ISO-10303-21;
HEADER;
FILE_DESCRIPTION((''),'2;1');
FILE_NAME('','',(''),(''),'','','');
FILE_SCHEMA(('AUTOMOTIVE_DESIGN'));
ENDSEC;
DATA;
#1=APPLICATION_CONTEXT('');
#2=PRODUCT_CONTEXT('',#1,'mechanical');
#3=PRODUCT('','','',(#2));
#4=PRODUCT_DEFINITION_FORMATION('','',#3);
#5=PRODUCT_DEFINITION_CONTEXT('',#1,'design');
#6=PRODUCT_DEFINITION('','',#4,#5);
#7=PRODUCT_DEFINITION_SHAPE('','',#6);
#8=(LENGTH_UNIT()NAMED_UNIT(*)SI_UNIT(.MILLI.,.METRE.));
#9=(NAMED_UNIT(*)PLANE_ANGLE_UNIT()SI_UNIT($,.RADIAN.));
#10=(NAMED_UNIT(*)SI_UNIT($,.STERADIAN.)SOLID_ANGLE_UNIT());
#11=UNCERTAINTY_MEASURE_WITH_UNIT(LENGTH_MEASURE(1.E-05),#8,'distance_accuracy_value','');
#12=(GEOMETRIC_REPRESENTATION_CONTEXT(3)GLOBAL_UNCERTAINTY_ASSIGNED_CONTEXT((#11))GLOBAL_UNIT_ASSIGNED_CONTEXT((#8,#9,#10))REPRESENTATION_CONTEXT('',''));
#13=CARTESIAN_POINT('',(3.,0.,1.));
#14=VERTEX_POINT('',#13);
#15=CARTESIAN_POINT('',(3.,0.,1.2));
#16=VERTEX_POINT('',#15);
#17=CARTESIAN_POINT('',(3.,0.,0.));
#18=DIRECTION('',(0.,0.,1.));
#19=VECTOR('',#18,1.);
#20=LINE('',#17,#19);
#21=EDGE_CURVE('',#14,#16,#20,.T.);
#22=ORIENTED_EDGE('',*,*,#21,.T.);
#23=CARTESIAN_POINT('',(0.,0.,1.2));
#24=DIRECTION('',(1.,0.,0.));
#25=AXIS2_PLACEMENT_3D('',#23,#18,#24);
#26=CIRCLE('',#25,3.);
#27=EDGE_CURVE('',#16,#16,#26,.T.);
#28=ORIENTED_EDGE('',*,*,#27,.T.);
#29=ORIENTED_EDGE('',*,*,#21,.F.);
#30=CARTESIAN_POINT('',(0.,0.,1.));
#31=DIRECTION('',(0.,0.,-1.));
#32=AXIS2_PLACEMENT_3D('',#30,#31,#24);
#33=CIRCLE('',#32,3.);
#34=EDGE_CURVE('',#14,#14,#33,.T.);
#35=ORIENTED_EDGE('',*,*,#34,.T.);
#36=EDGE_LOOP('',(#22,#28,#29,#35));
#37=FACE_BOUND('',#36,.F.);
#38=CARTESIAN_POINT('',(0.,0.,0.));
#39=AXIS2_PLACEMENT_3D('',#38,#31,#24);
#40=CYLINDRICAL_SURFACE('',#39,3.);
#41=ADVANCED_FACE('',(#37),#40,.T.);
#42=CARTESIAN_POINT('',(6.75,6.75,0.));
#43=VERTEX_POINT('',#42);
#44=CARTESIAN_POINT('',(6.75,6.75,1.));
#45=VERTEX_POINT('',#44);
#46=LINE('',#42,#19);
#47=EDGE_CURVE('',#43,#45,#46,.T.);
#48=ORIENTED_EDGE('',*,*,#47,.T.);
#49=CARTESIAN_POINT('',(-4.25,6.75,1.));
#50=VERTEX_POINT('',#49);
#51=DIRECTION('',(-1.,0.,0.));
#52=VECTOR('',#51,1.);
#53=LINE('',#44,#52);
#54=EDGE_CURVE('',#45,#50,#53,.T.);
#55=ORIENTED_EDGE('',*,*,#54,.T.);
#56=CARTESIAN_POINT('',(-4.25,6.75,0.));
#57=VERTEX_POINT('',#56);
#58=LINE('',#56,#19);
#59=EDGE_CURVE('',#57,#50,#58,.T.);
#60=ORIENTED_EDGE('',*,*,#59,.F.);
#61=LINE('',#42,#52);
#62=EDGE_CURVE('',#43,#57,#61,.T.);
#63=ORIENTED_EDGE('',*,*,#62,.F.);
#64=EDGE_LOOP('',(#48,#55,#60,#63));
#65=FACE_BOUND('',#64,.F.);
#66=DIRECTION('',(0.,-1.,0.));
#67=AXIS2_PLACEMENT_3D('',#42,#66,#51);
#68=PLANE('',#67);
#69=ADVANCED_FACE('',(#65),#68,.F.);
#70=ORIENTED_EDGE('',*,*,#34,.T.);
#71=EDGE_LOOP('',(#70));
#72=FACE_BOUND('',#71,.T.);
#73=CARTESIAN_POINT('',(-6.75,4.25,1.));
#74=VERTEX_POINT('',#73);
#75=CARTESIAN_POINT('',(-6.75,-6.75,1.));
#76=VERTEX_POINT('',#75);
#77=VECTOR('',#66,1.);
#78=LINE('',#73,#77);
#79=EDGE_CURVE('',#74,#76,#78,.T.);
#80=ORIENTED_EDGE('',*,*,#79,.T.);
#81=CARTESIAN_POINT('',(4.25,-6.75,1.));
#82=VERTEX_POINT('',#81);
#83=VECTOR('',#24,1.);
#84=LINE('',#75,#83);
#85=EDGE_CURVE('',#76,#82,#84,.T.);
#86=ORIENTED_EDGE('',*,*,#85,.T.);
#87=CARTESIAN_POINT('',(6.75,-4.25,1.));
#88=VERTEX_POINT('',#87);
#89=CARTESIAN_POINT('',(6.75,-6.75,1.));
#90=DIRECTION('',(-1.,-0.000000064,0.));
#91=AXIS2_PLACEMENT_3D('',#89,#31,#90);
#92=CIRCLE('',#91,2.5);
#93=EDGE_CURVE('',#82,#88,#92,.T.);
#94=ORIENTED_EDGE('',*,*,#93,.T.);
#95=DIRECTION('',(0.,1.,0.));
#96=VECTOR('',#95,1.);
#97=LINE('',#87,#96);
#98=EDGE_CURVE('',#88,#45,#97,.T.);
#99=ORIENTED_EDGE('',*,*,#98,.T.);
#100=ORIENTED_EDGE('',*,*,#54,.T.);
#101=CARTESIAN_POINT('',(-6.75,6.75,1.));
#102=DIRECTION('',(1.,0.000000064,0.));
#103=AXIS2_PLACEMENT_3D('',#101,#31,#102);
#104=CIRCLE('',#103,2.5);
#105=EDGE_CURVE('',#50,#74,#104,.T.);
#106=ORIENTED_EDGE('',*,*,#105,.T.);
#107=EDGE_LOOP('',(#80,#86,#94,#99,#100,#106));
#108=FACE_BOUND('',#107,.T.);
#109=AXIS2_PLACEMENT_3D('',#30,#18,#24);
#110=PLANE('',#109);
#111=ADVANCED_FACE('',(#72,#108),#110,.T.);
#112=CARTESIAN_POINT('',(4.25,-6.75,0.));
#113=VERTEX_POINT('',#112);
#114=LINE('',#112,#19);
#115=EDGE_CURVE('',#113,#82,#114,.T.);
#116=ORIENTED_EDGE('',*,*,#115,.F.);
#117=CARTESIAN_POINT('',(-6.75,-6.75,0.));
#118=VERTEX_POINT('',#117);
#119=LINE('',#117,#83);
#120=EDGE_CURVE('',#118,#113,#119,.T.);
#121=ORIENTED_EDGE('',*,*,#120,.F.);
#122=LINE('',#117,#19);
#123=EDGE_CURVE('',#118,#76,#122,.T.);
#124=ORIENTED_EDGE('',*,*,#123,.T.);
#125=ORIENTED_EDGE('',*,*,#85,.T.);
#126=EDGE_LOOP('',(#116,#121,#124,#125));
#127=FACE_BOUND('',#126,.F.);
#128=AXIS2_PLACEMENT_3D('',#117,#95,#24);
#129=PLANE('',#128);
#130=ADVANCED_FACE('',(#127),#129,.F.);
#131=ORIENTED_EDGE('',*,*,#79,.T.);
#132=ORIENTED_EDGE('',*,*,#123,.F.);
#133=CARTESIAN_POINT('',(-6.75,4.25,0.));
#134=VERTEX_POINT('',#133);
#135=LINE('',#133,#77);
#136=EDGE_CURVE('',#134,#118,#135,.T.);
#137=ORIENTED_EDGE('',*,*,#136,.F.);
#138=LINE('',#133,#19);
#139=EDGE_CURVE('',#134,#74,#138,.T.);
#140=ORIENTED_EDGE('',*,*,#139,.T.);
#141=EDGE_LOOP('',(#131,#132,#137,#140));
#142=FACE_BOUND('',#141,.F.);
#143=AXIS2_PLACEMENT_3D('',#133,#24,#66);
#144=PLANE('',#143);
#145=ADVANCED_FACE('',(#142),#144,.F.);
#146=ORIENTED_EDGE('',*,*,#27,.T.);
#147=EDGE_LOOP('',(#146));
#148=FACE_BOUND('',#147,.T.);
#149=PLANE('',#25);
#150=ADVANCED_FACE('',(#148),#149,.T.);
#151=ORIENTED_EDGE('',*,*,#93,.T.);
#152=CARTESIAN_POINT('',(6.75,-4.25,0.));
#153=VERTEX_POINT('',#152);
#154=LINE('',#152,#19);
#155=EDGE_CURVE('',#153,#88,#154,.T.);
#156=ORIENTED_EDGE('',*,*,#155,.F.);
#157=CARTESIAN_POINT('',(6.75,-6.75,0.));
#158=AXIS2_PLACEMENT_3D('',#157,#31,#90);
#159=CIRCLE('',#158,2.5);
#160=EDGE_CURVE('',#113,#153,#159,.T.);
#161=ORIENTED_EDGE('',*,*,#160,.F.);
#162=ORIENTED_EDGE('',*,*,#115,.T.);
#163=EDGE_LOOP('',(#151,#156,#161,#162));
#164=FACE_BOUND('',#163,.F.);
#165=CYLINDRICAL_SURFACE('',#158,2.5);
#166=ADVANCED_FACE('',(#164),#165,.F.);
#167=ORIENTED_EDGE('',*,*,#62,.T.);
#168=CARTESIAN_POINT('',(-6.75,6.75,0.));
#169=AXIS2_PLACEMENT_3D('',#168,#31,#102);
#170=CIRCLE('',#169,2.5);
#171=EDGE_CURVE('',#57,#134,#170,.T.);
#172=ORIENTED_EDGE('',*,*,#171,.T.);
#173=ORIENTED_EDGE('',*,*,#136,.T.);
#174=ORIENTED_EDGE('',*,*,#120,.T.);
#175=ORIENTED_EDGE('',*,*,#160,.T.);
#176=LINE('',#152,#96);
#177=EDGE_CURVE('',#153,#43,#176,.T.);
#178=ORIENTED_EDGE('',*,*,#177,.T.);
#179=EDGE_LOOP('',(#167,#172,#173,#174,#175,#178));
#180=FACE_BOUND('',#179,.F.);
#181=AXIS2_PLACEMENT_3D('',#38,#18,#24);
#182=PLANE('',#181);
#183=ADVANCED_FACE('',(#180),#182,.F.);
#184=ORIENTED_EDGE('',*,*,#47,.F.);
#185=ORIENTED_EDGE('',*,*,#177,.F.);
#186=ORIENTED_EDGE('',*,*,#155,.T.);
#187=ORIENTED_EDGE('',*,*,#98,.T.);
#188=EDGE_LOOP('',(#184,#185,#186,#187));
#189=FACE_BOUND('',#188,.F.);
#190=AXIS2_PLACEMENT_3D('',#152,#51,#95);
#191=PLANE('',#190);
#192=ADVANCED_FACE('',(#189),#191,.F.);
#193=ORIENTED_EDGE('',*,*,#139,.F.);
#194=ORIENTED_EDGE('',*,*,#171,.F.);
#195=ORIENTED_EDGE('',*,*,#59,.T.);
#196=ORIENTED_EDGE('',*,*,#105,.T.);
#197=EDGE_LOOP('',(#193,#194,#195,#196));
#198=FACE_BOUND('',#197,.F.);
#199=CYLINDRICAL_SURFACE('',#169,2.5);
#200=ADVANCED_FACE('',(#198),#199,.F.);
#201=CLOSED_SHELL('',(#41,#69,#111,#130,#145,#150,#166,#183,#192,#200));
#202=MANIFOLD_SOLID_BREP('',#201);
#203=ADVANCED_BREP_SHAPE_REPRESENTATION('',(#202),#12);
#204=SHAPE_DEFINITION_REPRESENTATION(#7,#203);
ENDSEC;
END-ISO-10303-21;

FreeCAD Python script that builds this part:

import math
import FreeCAD as App
import Part
import Sketcher

doc = App.newDocument("Part")
body = doc.addObject("PartDesign::Body", "Body")

# Sketch on XY plane
sketch1 = doc.addObject("Sketcher::SketchObject", "Sketch")
body.addObject(sketch1)
sketch1.AttachmentSupport = (doc.XY_Plane, [""])
sketch1.MapMode = "FlatFace"
sketch1.addGeometry(Part.LineSegment(App.Vector(-6.75, -6.75, 0), App.Vector(4.25, -6.75, 0)), False)
sketch1.addGeometry(Part.ArcOfCircle(Part.Circle(App.Vector(6.75, -6.75, 0), App.Vector(0, 0, 1), 2.5), math.radians(89.999996), math.radians(180.000004)), False)
sketch1.addGeometry(Part.LineSegment(App.Vector(6.75, -4.25, 0), App.Vector(6.75, 6.75, 0)), False)
sketch1.addGeometry(Part.LineSegment(App.Vector(6.75, 6.75, 0), App.Vector(-4.25, 6.75, 0)), False)
sketch1.addGeometry(Part.ArcOfCircle(Part.Circle(App.Vector(-6.75, 6.75, 0), App.Vector(0, 0, 1), 2.5), math.radians(-90.000004), math.radians(0.000004)), False)
sketch1.addGeometry(Part.LineSegment(App.Vector(-6.75, 4.25, 0), App.Vector(-6.75, -6.75, 0)), False)
sketch1.addConstraint(Sketcher.Constraint("Coincident", 0, 2, 1, 2))
sketch1.addConstraint(Sketcher.Constraint("Coincident", 1, 1, 2, 1))
sketch1.addConstraint(Sketcher.Constraint("Coincident", 2, 2, 3, 1))
sketch1.addConstraint(Sketcher.Constraint("Coincident", 3, 2, 4, 2))
sketch1.addConstraint(Sketcher.Constraint("Coincident", 4, 1, 5, 1))
sketch1.addConstraint(Sketcher.Constraint("Coincident", 5, 2, 0, 1))
sketch1.addConstraint(Sketcher.Constraint("Horizontal", 0))
sketch1.addConstraint(Sketcher.Constraint("Vertical", 2))
sketch1.addConstraint(Sketcher.Constraint("Horizontal", 3))
sketch1.addConstraint(Sketcher.Constraint("Vertical", 5))
sketch1.addConstraint(Sketcher.Constraint("Equal", 1, 4))
sketch1.addConstraint(Sketcher.Constraint("Symmetric", 1, 3, 4, 3, -1, 1))
sketch1.addConstraint(Sketcher.Constraint("Symmetric", 2, 2, 5, 2, -1, 1))
sketch1.addConstraint(Sketcher.Constraint("Horizontal", 1, 3, 0, 2))
sketch1.addConstraint(Sketcher.Constraint("Equal", 3, 2))
sketch1.addConstraint(Sketcher.Constraint("Radius", 1, 2.5))
sketch1.addConstraint(Sketcher.Constraint("DistanceX", 0, 1, 0, 2, 11.0))
sketch1.addConstraint(Sketcher.Constraint("DistanceX", 4, 3, 0, 2, 11.0))
pad1 = doc.addObject("PartDesign::Pad", "Pad")
body.addObject(pad1)
pad1.Profile = sketch1
pad1.Length = 1

# Sketch on XY plane
sketch2 = doc.addObject("Sketcher::SketchObject", "Sketch001")
body.addObject(sketch2)
sketch2.AttachmentSupport = (doc.XY_Plane, [""])
sketch2.MapMode = "FlatFace"
sketch2.addGeometry(Part.Circle(App.Vector(0, 0, 0), App.Vector(0, 0, 1), 3), False)
sketch2.addConstraint(Sketcher.Constraint("Coincident", 0, 3, -1, 1))
sketch2.addConstraint(Sketcher.Constraint("Diameter", 0, 6.0))
pad2 = doc.addObject("PartDesign::Pad", "Pad001")
body.addObject(pad2)
pad2.Profile = sketch2
pad2.Length = 1.2

doc.recompute()
